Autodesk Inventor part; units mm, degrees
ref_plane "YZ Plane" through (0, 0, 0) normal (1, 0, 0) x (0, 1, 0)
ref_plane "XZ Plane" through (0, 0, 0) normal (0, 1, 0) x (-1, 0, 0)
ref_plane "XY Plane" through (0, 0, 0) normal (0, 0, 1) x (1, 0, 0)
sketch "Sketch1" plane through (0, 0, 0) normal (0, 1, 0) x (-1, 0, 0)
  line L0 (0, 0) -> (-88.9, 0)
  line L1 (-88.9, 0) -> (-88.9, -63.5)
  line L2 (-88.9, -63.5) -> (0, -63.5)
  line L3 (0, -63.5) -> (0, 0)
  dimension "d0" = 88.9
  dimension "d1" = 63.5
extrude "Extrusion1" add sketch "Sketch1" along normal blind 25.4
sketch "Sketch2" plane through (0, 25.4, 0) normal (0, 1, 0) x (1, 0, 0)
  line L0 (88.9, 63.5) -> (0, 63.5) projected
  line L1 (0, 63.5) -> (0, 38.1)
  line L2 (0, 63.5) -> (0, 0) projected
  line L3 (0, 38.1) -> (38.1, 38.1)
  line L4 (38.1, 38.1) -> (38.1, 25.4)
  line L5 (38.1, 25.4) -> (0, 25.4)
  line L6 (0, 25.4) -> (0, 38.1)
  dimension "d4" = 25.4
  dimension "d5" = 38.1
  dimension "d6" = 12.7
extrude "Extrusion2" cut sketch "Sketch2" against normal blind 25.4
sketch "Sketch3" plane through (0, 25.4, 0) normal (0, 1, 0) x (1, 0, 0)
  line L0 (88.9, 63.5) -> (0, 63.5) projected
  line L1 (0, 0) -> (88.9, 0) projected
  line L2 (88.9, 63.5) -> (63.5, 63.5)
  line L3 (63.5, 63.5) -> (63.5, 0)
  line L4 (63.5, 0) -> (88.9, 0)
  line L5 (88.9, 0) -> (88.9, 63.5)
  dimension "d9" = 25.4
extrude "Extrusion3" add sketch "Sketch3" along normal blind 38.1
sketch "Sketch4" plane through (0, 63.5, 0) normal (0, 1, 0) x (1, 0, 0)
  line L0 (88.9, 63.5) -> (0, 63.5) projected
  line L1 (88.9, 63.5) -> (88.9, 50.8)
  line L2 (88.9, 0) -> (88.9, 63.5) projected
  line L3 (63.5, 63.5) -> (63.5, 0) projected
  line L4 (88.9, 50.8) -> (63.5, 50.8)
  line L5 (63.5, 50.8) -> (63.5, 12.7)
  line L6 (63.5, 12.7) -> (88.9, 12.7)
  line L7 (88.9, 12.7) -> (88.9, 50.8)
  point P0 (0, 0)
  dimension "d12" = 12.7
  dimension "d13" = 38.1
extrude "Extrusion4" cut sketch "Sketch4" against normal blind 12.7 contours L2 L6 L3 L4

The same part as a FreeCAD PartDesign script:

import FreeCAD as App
import Part
import Sketcher

V = App.Vector
Q = App.Units.Quantity

doc = App.newDocument("Part")
params = doc.addObject("Spreadsheet::Sheet", "Params")
for row, (alias, value) in enumerate([
    ("sketch1_width", "3.5 in"),
    ("sketch1_height", "2.5 in"),
    ("pad1_length", "1 in"),
    ("sketch2_width", "1.5 in"),
    ("sketch2_height", "0.5 in"),
    ("pocket1_length", "1 in"),
    ("sketch3_width", "1 in"),
    ("sketch3_height", "2.5 in"),
    ("pad2_length", "1.5 in"),
    ("sketch4_height", "1.5 in"),
    ("sketch4_width", "1 in"),
    ("pocket2_length", "0.5 in"),
], start=1):
    params.set(f"A{row}", alias)
    params.set(f"B{row}", "=" + value)
    params.setAlias(f"B{row}", alias)

body = doc.addObject("PartDesign::Body", "Body")

# Sketch on XZ plane
sketch1 = body.newObject("Sketcher::SketchObject", "Sketch")
sketch1.AttachmentSupport = (doc.getObject("XZ_Plane"), [""])
sketch1.MapMode = "FlatFace"
sketch1.addGeometry(Part.LineSegment(V(0, -64, 0), V(0, 0, 0)), False)
sketch1.addGeometry(Part.LineSegment(V(0, 0, 0), V(89, 0, 0)), False)
sketch1.addGeometry(Part.LineSegment(V(89, 0, 0), V(89, -64, 0)), False)
sketch1.addGeometry(Part.LineSegment(V(89, -64, 0), V(0, -64, 0)), False)
sketch1.addConstraint(Sketcher.Constraint("Coincident", 0, 2, 1, 1))
sketch1.addConstraint(Sketcher.Constraint("Coincident", 1, 2, 2, 1))
sketch1.addConstraint(Sketcher.Constraint("Coincident", 2, 2, 3, 1))
sketch1.addConstraint(Sketcher.Constraint("Coincident", 3, 2, 0, 1))
sketch1.addConstraint(Sketcher.Constraint("Vertical", 0))
sketch1.addConstraint(Sketcher.Constraint("Horizontal", 1))
sketch1.addConstraint(Sketcher.Constraint("Vertical", 2))
sketch1.addConstraint(Sketcher.Constraint("Horizontal", 3))
sketch1.addConstraint(Sketcher.Constraint("Coincident", 0, 2, -1, 1))
sketch1.addConstraint(Sketcher.Constraint("DistanceX", 1, 1, 1, 2, Q("3.5 in")))
sketch1.addConstraint(Sketcher.Constraint("DistanceY", 0, 1, 0, 2, Q("2.5 in")))
sketch1.setExpression("Constraints[9]", "Params.sketch1_width")
sketch1.setExpression("Constraints[10]", "Params.sketch1_height")
pad1 = body.newObject("PartDesign::Pad", "Pad")
pad1.Profile = sketch1
pad1.setExpression("Length", "Params.pad1_length")
pad1.Reversed = True

# Sketch on XZ plane
sketch2 = body.newObject("Sketcher::SketchObject", "Sketch001")
sketch2.AttachmentSupport = (doc.getObject("XZ_Plane"), [""])
sketch2.MapMode = "FlatFace"
sketch2.AttachmentOffset = App.Placement(V(0, 0, -1 * 25.4), App.Rotation())
sketch2.addGeometry(Part.LineSegment(V(38, -38, 0), V(0, -38, 0)), False)
sketch2.addGeometry(Part.LineSegment(V(0, -38, 0), V(0, -25, 0)), False)
sketch2.addGeometry(Part.LineSegment(V(0, -25, 0), V(38, -25, 0)), False)
sketch2.addGeometry(Part.LineSegment(V(38, -25, 0), V(38, -38, 0)), False)
sketch2.addConstraint(Sketcher.Constraint("Coincident", 0, 2, 1, 1))
sketch2.addConstraint(Sketcher.Constraint("Coincident", 1, 2, 2, 1))
sketch2.addConstraint(Sketcher.Constraint("Coincident", 2, 2, 3, 1))
sketch2.addConstraint(Sketcher.Constraint("Coincident", 3, 2, 0, 1))
sketch2.addConstraint(Sketcher.Constraint("Horizontal", 0))
sketch2.addConstraint(Sketcher.Constraint("Vertical", 1))
sketch2.addConstraint(Sketcher.Constraint("Horizontal", 2))
sketch2.addConstraint(Sketcher.Constraint("Vertical", 3))
sketch2.addConstraint(Sketcher.Constraint("PointOnObject", 0, 2, -2))
sketch2.addConstraint(Sketcher.Constraint("DistanceX", 0, 2, 0, 1, Q("1.5 in")))
sketch2.addConstraint(Sketcher.Constraint("DistanceY", 1, 1, 1, 2, Q("0.5 in")))
sketch2.addConstraint(Sketcher.Constraint("DistanceY", 1, 2, -1, 1, Q("1 in")))
sketch2.setExpression("Constraints[9]", "Params.sketch2_width")
sketch2.setExpression("Constraints[10]", "Params.sketch2_height")
pocket1 = body.newObject("PartDesign::Pocket", "Pocket")
pocket1.Profile = sketch2
pocket1.setExpression("Length", "Params.pocket1_length")
pocket1.Reversed = True

# Sketch on XZ plane
sketch3 = body.newObject("Sketcher::SketchObject", "Sketch002")
sketch3.AttachmentSupport = (doc.getObject("XZ_Plane"), [""])
sketch3.MapMode = "FlatFace"
sketch3.AttachmentOffset = App.Placement(V(0, 0, -1 * 25.4), App.Rotation())
sketch3.addGeometry(Part.LineSegment(V(89, 0, 0), V(89, -64, 0)), False)
sketch3.addGeometry(Part.LineSegment(V(89, -64, 0), V(64, -64, 0)), False)
sketch3.addGeometry(Part.LineSegment(V(64, -64, 0), V(64, 0, 0)), False)
sketch3.addGeometry(Part.LineSegment(V(64, 0, 0), V(89, 0, 0)), False)
sketch3.addConstraint(Sketcher.Constraint("Coincident", 0, 2, 1, 1))
sketch3.addConstraint(Sketcher.Constraint("Coincident", 1, 2, 2, 1))
sketch3.addConstraint(Sketcher.Constraint("Coincident", 2, 2, 3, 1))
sketch3.addConstraint(Sketcher.Constraint("Coincident", 3, 2, 0, 1))
sketch3.addConstraint(Sketcher.Constraint("Vertical", 0))
sketch3.addConstraint(Sketcher.Constraint("Horizontal", 1))
sketch3.addConstraint(Sketcher.Constraint("Vertical", 2))
sketch3.addConstraint(Sketcher.Constraint("Horizontal", 3))
sketch3.addConstraint(Sketcher.Constraint("PointOnObject", 2, 2, -1))
sketch3.addConstraint(Sketcher.Constraint("DistanceX", 1, 2, 1, 1, Q("1 in")))
sketch3.addConstraint(Sketcher.Constraint("DistanceY", 0, 2, 0, 1, Q("2.5 in")))
sketch3.addConstraint(Sketcher.Constraint("DistanceX", -1, 1, 0, 2, Q("3.5 in")))
sketch3.setExpression("Constraints[9]", "Params.sketch3_width")
sketch3.setExpression("Constraints[10]", "Params.sketch3_height")
pad2 = body.newObject("PartDesign::Pad", "Pad001")
pad2.Profile = sketch3
pad2.setExpression("Length", "Params.pad2_length")
pad2.Reversed = True

# Sketch on XZ plane
sketch4 = body.newObject("Sketcher::SketchObject", "Sketch003")
sketch4.AttachmentSupport = (doc.getObject("XZ_Plane"), [""])
sketch4.MapMode = "FlatFace"
sketch4.AttachmentOffset = App.Placement(V(0, 0, -2.5 * 25.4), App.Rotation())
sketch4.addGeometry(Part.LineSegment(V(89, -13, 0), V(89, -51, 0)), False)
sketch4.addGeometry(Part.LineSegment(V(89, -51, 0), V(64, -51, 0)), False)
sketch4.addGeometry(Part.LineSegment(V(64, -51, 0), V(64, -13, 0)), False)
sketch4.addGeometry(Part.LineSegment(V(64, -13, 0), V(89, -13, 0)), False)
sketch4.addConstraint(Sketcher.Constraint("Coincident", 0, 2, 1, 1))
sketch4.addConstraint(Sketcher.Constraint("Coincident", 1, 2, 2, 1))
sketch4.addConstraint(Sketcher.Constraint("Coincident", 2, 2, 3, 1))
sketch4.addConstraint(Sketcher.Constraint("Coincident", 3, 2, 0, 1))
sketch4.addConstraint(Sketcher.Constraint("Vertical", 0))
sketch4.addConstraint(Sketcher.Constraint("Horizontal", 1))
sketch4.addConstraint(Sketcher.Constraint("Vertical", 2))
sketch4.addConstraint(Sketcher.Constraint("Horizontal", 3))
sketch4.addConstraint(Sketcher.Constraint("DistanceY", 0, 2, 0, 1, Q("1.5 in")))
sketch4.addConstraint(Sketcher.Constraint("DistanceY", 2, 2, -1, 1, Q("0.5 in")))
sketch4.addConstraint(Sketcher.Constraint("DistanceX", 1, 2, 1, 1, Q("1 in")))
sketch4.addConstraint(Sketcher.Constraint("DistanceX", -1, 1, 0, 2, Q("3.5 in")))
sketch4.setExpression("Constraints[8]", "Params.sketch4_height")
sketch4.setExpression("Constraints[10]", "Params.sketch4_width")
pocket2 = body.newObject("PartDesign::Pocket", "Pocket001")
pocket2.Profile = sketch4
pocket2.setExpression("Length", "Params.pocket2_length")
pocket2.Reversed = True

doc.recompute()
